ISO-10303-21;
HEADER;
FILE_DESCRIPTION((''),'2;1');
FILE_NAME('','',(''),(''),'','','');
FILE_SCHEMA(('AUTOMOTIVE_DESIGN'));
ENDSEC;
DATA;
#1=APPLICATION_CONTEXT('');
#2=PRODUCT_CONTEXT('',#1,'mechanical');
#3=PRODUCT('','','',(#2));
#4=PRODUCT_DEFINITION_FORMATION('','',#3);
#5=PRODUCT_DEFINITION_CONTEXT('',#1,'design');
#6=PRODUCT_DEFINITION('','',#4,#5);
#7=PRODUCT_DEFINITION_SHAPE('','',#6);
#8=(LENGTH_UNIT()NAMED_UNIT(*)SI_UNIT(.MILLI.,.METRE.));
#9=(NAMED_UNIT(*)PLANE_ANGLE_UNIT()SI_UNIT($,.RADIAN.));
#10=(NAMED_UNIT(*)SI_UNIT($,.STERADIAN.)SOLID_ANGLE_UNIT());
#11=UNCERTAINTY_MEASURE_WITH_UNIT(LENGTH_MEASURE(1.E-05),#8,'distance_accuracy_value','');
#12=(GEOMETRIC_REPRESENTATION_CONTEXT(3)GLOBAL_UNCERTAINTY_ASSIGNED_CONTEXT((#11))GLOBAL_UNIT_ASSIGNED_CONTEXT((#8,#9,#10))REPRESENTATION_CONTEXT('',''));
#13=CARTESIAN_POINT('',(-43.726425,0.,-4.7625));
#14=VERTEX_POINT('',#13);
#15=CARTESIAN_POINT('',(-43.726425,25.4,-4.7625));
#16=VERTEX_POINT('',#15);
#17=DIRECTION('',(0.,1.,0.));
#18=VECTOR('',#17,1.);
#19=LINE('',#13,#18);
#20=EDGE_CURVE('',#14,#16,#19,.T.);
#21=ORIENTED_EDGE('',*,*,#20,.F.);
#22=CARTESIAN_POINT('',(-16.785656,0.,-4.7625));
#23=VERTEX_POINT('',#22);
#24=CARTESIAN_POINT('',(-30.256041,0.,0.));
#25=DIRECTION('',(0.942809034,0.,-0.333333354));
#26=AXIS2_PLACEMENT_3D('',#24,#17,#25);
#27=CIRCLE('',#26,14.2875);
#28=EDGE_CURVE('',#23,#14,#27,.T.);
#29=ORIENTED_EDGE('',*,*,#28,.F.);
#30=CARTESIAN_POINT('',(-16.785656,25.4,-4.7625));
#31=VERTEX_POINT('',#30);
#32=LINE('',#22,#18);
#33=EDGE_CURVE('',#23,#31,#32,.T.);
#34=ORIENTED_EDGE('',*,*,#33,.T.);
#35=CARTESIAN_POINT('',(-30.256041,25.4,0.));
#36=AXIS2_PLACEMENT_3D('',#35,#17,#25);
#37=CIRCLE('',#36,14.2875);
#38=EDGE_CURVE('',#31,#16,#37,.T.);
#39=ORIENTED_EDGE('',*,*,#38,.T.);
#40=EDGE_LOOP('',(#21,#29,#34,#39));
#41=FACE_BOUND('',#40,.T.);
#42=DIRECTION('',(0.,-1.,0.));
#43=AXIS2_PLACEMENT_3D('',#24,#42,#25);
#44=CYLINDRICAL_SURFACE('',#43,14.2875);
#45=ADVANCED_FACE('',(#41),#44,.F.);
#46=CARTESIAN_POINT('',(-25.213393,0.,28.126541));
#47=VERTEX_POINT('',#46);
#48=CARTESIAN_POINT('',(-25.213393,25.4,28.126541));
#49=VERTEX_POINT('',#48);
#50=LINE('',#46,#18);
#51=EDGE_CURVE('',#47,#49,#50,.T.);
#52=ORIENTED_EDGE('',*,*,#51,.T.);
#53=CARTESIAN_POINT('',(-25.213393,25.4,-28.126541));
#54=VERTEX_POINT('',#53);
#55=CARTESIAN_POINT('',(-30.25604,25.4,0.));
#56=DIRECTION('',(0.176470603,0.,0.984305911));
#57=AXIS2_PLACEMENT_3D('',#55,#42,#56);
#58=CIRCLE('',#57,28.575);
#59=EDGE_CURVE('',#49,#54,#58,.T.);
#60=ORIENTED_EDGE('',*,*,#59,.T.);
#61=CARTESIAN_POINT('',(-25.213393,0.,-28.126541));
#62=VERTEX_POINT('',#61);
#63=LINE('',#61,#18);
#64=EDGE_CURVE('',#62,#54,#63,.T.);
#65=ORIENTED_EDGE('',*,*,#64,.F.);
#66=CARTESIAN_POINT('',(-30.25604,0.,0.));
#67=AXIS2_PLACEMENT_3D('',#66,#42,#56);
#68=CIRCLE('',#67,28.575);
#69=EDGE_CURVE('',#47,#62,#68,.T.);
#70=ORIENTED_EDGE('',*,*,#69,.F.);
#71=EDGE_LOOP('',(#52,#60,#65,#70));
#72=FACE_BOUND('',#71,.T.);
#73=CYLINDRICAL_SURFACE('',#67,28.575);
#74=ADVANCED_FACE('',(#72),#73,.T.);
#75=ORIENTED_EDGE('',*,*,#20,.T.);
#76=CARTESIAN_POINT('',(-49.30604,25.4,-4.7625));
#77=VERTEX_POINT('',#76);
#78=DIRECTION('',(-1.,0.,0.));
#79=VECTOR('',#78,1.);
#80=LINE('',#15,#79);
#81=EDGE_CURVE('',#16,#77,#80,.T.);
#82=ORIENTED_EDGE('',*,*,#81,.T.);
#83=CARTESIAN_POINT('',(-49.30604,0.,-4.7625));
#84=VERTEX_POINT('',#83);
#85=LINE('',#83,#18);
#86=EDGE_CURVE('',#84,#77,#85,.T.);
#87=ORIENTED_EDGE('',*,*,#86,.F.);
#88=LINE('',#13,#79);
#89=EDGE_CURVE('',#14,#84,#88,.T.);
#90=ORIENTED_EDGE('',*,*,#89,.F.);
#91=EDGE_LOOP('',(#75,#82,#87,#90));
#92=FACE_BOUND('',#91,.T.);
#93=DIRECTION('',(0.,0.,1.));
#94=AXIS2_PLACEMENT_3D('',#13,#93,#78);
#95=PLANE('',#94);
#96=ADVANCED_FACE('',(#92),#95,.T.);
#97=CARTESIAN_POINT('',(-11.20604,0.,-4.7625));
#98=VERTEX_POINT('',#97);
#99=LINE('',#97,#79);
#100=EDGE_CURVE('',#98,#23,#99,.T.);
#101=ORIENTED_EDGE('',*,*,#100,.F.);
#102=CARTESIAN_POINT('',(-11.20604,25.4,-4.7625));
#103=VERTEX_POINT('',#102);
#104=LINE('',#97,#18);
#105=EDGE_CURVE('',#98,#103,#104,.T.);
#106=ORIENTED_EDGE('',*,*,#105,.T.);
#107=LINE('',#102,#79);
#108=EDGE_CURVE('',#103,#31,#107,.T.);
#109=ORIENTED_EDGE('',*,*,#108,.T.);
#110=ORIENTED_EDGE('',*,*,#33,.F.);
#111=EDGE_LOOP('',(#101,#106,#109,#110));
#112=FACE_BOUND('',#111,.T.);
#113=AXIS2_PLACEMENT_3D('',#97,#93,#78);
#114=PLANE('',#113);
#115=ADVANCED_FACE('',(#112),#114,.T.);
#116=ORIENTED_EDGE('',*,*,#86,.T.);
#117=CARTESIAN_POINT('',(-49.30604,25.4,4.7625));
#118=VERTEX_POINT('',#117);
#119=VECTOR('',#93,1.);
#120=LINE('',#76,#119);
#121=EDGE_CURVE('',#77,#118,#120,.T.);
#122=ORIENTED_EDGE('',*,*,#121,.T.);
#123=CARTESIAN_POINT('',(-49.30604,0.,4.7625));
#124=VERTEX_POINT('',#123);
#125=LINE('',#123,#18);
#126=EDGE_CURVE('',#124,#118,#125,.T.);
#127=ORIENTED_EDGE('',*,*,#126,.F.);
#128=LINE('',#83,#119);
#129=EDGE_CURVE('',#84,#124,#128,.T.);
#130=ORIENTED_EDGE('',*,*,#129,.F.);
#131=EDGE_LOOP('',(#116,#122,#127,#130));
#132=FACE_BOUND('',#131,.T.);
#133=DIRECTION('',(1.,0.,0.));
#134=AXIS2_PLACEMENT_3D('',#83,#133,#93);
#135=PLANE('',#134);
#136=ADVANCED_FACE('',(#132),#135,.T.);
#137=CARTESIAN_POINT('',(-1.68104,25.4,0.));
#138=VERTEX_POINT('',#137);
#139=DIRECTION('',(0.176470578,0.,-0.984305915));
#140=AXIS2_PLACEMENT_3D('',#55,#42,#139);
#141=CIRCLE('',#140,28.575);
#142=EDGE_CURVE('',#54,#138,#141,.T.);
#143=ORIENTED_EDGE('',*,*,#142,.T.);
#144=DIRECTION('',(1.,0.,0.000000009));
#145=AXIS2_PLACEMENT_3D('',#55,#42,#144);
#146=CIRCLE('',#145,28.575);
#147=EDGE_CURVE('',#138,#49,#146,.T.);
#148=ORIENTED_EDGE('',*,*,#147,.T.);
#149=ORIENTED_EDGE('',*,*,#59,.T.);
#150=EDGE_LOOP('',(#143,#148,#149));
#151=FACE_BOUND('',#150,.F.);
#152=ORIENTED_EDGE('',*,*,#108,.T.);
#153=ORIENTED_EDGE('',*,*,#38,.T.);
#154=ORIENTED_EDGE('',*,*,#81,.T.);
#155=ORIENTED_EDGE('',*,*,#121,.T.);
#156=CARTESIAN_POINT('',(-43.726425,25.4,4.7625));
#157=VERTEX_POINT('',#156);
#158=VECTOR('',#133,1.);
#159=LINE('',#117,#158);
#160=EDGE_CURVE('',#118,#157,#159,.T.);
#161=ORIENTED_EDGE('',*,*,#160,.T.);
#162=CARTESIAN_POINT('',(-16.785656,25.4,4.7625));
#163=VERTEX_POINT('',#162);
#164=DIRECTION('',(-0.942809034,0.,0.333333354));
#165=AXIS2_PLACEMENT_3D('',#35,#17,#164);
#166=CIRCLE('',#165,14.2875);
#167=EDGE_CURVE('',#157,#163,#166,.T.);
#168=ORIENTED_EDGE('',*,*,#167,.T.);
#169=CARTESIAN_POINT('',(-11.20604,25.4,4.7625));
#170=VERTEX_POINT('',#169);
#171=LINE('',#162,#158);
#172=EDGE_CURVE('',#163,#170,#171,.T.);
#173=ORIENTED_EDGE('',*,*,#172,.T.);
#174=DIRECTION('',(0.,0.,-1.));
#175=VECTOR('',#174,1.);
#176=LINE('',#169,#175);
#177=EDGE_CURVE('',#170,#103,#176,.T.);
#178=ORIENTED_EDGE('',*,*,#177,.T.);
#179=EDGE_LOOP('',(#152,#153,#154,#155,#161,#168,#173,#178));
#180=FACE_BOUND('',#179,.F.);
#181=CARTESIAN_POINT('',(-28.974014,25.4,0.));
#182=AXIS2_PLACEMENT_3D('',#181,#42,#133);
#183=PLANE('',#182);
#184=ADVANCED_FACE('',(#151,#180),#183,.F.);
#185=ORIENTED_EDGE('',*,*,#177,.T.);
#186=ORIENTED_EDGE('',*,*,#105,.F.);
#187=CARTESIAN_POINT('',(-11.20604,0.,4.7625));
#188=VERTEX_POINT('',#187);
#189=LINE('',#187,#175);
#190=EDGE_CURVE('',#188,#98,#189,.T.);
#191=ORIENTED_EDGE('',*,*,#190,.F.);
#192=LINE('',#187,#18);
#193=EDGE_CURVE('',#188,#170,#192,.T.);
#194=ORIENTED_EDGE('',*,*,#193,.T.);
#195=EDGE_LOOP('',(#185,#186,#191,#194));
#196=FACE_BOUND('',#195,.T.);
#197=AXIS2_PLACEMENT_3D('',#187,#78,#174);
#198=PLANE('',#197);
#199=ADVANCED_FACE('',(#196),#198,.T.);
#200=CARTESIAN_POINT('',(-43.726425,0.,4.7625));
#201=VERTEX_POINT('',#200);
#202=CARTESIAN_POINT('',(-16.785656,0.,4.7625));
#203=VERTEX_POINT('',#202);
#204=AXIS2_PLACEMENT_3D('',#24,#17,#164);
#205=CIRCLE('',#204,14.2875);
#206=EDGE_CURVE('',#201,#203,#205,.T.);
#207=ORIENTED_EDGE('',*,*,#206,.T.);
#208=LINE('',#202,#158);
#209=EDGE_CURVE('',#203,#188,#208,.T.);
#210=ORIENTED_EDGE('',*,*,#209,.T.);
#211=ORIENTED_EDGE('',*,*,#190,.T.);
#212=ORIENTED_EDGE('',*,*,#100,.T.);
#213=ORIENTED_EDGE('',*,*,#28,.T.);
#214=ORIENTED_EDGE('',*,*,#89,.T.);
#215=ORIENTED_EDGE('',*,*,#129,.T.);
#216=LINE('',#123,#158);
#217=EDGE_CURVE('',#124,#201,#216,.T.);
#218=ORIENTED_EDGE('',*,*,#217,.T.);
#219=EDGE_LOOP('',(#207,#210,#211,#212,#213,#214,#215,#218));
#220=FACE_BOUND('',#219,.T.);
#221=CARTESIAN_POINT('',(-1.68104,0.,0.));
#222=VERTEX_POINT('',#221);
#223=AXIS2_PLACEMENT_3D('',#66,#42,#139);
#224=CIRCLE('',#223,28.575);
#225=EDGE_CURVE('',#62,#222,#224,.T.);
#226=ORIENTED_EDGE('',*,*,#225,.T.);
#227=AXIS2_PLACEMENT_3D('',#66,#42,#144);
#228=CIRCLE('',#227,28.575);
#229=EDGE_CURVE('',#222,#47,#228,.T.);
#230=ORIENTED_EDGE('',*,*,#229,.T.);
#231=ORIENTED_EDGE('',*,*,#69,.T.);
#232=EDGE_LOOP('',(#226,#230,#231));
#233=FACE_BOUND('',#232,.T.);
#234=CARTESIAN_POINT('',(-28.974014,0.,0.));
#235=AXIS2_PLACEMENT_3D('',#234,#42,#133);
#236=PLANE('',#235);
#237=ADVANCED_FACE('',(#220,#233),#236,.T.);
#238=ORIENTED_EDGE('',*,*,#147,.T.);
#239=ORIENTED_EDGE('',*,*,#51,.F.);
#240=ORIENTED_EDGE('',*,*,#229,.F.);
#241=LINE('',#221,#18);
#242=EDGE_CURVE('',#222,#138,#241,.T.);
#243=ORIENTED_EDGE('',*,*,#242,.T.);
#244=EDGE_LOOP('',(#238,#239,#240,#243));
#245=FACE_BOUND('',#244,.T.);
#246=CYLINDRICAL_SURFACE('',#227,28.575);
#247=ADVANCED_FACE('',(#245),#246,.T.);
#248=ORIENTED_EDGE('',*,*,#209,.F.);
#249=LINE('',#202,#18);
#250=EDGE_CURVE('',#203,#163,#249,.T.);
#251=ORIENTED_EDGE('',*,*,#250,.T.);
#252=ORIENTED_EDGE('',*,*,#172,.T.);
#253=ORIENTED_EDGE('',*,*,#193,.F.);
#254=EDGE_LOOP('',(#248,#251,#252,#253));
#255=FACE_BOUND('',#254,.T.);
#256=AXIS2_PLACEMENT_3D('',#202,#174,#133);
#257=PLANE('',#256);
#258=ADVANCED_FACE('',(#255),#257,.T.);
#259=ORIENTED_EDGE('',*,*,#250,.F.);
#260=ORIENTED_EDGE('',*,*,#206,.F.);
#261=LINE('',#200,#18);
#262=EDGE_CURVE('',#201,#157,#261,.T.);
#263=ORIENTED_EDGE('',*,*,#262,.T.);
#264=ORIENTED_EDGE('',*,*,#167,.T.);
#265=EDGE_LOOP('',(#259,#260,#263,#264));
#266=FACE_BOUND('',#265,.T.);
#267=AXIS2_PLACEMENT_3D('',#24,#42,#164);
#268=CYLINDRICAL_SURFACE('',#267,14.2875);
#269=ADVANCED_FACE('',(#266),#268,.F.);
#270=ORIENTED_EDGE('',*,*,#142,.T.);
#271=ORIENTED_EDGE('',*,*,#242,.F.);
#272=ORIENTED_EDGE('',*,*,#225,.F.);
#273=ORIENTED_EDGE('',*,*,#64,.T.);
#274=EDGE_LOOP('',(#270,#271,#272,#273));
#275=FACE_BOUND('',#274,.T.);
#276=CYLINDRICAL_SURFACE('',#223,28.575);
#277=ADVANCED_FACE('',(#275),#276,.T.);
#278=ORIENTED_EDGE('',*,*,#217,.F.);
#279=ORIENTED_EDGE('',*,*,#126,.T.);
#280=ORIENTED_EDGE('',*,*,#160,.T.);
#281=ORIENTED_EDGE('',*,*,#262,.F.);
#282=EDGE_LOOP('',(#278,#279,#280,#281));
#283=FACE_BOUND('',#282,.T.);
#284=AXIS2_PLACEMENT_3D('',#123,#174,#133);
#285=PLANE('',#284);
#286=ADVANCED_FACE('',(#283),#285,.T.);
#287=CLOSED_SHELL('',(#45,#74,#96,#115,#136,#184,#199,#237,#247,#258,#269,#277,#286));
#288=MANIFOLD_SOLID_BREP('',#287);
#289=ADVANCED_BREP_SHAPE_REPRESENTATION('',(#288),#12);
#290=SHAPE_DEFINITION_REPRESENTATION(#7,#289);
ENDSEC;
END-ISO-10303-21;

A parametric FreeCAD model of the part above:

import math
import FreeCAD as App
import Part
import Sketcher
from FreeCAD import Vector
Q = App.Units.Quantity

doc = App.newDocument("Part")
params = doc.addObject("Spreadsheet::Sheet", "Params")
for row, (alias, value) in enumerate([
    ("sketch1_radius", "1.125 in"),
    ("sketch1_radius2", "0.5625 in"),
    ("sketch1_height", "0.375 in"),
    ("pad1_length", "1 in"),
], start=1):
    params.set(f"A{row}", alias)
    params.set(f"B{row}", "=" + value)
    params.setAlias(f"B{row}", alias)

body = doc.addObject("PartDesign::Body", "Body")

sketch1 = body.newObject("Sketcher::SketchObject", "Sketch")
sketch1.AttachmentSupport = (doc.getObject("XZ_Plane"), [""])
sketch1.MapMode = "FlatFace"
sketch1.addGeometry(Part.ArcOfCircle(Part.Circle(Vector(-30.25604, 0, 0), Vector(0, 0, 1), 28.575), math.radians(-79.835752), math.radians(0)), False)
sketch1.addGeometry(Part.ArcOfCircle(Part.Circle(Vector(-30.25604, 0, 0), Vector(0, 0, 1), 28.575), math.radians(0), math.radians(79.835752)), False)
sketch1.addGeometry(Part.ArcOfCircle(Part.Circle(Vector(-30.25604, 0, 0), Vector(0, 0, 1), 28.575), math.radians(79.835751), math.radians(280.164249)), False)
sketch1.addGeometry(Part.LineSegment(Vector(-49.30604, 4.7625, 0), Vector(-43.726425, 4.7625, 0)), False)
sketch1.addGeometry(Part.ArcOfCircle(Part.Circle(Vector(-30.256041, 0, 0), Vector(0, 0, 1), 14.2875), math.radians(19.471222), math.radians(160.528778)), False)
sketch1.addGeometry(Part.LineSegment(Vector(-16.785656, 4.7625, 0), Vector(-11.20604, 4.7625, 0)), False)
sketch1.addGeometry(Part.LineSegment(Vector(-11.20604, 4.7625, 0), Vector(-11.20604, -4.7625, 0)), False)
sketch1.addGeometry(Part.LineSegment(Vector(-11.20604, -4.7625, 0), Vector(-16.785656, -4.7625, 0)), False)
sketch1.addGeometry(Part.ArcOfCircle(Part.Circle(Vector(-30.256041, 0, 0), Vector(0, 0, 1), 14.2875), math.radians(-160.528778), math.radians(-19.471222)), False)
sketch1.addGeometry(Part.LineSegment(Vector(-43.726425, -4.7625, 0), Vector(-49.30604, -4.7625, 0)), False)
sketch1.addGeometry(Part.LineSegment(Vector(-49.30604, -4.7625, 0), Vector(-49.30604, 4.7625, 0)), False)
sketch1.addConstraint(Sketcher.Constraint("Tangent", 0, 2, 1, 1))
sketch1.addConstraint(Sketcher.Constraint("Tangent", 1, 2, 2, 1))
sketch1.addConstraint(Sketcher.Constraint("Tangent", 2, 2, 0, 1))
sketch1.addConstraint(Sketcher.Constraint("Coincident", 3, 2, 4, 2))
sketch1.addConstraint(Sketcher.Constraint("Coincident", 4, 1, 5, 1))
sketch1.addConstraint(Sketcher.Constraint("Coincident", 5, 2, 6, 1))
sketch1.addConstraint(Sketcher.Constraint("Coincident", 6, 2, 7, 1))
sketch1.addConstraint(Sketcher.Constraint("Coincident", 7, 2, 8, 2))
sketch1.addConstraint(Sketcher.Constraint("Coincident", 8, 1, 9, 1))
sketch1.addConstraint(Sketcher.Constraint("Coincident", 9, 2, 10, 1))
sketch1.addConstraint(Sketcher.Constraint("Coincident", 10, 2, 3, 1))
sketch1.addConstraint(Sketcher.Constraint("Horizontal", 3))
sketch1.addConstraint(Sketcher.Constraint("Horizontal", 5))
sketch1.addConstraint(Sketcher.Constraint("Vertical", 6))
sketch1.addConstraint(Sketcher.Constraint("Horizontal", 7))
sketch1.addConstraint(Sketcher.Constraint("Horizontal", 9))
sketch1.addConstraint(Sketcher.Constraint("Vertical", 10))
sketch1.addConstraint(Sketcher.Constraint("Coincident", 4, 3, 0, 3))
sketch1.addConstraint(Sketcher.Constraint("Coincident", 8, 3, 0, 3))
sketch1.addConstraint(Sketcher.Constraint("Equal", 4, 8))
sketch1.addConstraint(Sketcher.Constraint("Symmetric", 1, 2, 2, 2, -1))
sketch1.addConstraint(Sketcher.Constraint("PointOnObject", 0, 2, -1))
sketch1.addConstraint(Sketcher.Constraint("Horizontal", 3, 2, 4, 1))
sketch1.addConstraint(Sketcher.Constraint("Horizontal", 7, 2, 8, 1))
sketch1.addConstraint(Sketcher.Constraint("Vertical", 4, 1, 7, 2))
sketch1.addConstraint(Sketcher.Constraint("Equal", 3, 5))
sketch1.addConstraint(Sketcher.Constraint("Radius", 0, Q("1.125 in")))
sketch1.addConstraint(Sketcher.Constraint("Radius", 4, Q("0.5625 in")))
sketch1.addConstraint(Sketcher.Constraint("DistanceY", 6, 2, 6, 1, Q("0.375 in")))
sketch1.addConstraint(Sketcher.Constraint("DistanceX", 0, 3, 5, 2, Q("0.75 in")))
sketch1.addConstraint(Sketcher.Constraint("DistanceX", 0, 3, -1, 1, 30.25604))
sketch1.addConstraint(Sketcher.Constraint("DistanceY", -1, 1, 1, 2, 28.126541))
sketch1.setExpression("Constraints[26]", "Params.sketch1_radius")
sketch1.setExpression("Constraints[27]", "Params.sketch1_radius2")
sketch1.setExpression("Constraints[28]", "Params.sketch1_height")
pad1 = body.newObject("PartDesign::Pad", "Pad")
pad1.Profile = sketch1
pad1.setExpression("Length", "Params.pad1_length")
pad1.Reversed = True

doc.recompute()
